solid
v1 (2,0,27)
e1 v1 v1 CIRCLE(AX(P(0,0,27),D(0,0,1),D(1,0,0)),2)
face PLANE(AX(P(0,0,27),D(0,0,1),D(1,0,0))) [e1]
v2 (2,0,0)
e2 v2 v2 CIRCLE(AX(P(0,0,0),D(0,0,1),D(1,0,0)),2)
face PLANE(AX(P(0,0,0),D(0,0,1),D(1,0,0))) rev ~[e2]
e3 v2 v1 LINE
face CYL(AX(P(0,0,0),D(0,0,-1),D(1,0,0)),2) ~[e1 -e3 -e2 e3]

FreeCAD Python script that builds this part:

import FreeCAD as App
import Part
import Sketcher
from FreeCAD import Vector
Q = App.Units.Quantity

doc = App.newDocument("Part")
params = doc.addObject("Spreadsheet::Sheet", "Params")
for row, (alias, value) in enumerate([
    ("sketch1_diameter", "4 mm"),
    ("pad1_length", "27 mm"),
], start=1):
    params.set(f"A{row}", alias)
    params.set(f"B{row}", "=" + value)
    params.setAlias(f"B{row}", alias)

body = doc.addObject("PartDesign::Body", "Body")

sketch1 = body.newObject("Sketcher::SketchObject", "Sketch")
sketch1.AttachmentSupport = (doc.getObject("XY_Plane"), [""])
sketch1.MapMode = "FlatFace"
sketch1.addGeometry(Part.Circle(Vector(0, 0, 0), Vector(0, 0, 1), 2), False)
sketch1.addConstraint([
    Sketcher.Constraint("Coincident", 0, 3, -1, 1),
    Sketcher.Constraint("Diameter", 0, Q("4 mm")),
])
sketch1.setExpression("Constraints[1]", "Params.sketch1_diameter")
pad1 = body.newObject("PartDesign::Pad", "Pad")
pad1.Profile = sketch1
pad1.setExpression("Length", "Params.pad1_length")

doc.recompute()
